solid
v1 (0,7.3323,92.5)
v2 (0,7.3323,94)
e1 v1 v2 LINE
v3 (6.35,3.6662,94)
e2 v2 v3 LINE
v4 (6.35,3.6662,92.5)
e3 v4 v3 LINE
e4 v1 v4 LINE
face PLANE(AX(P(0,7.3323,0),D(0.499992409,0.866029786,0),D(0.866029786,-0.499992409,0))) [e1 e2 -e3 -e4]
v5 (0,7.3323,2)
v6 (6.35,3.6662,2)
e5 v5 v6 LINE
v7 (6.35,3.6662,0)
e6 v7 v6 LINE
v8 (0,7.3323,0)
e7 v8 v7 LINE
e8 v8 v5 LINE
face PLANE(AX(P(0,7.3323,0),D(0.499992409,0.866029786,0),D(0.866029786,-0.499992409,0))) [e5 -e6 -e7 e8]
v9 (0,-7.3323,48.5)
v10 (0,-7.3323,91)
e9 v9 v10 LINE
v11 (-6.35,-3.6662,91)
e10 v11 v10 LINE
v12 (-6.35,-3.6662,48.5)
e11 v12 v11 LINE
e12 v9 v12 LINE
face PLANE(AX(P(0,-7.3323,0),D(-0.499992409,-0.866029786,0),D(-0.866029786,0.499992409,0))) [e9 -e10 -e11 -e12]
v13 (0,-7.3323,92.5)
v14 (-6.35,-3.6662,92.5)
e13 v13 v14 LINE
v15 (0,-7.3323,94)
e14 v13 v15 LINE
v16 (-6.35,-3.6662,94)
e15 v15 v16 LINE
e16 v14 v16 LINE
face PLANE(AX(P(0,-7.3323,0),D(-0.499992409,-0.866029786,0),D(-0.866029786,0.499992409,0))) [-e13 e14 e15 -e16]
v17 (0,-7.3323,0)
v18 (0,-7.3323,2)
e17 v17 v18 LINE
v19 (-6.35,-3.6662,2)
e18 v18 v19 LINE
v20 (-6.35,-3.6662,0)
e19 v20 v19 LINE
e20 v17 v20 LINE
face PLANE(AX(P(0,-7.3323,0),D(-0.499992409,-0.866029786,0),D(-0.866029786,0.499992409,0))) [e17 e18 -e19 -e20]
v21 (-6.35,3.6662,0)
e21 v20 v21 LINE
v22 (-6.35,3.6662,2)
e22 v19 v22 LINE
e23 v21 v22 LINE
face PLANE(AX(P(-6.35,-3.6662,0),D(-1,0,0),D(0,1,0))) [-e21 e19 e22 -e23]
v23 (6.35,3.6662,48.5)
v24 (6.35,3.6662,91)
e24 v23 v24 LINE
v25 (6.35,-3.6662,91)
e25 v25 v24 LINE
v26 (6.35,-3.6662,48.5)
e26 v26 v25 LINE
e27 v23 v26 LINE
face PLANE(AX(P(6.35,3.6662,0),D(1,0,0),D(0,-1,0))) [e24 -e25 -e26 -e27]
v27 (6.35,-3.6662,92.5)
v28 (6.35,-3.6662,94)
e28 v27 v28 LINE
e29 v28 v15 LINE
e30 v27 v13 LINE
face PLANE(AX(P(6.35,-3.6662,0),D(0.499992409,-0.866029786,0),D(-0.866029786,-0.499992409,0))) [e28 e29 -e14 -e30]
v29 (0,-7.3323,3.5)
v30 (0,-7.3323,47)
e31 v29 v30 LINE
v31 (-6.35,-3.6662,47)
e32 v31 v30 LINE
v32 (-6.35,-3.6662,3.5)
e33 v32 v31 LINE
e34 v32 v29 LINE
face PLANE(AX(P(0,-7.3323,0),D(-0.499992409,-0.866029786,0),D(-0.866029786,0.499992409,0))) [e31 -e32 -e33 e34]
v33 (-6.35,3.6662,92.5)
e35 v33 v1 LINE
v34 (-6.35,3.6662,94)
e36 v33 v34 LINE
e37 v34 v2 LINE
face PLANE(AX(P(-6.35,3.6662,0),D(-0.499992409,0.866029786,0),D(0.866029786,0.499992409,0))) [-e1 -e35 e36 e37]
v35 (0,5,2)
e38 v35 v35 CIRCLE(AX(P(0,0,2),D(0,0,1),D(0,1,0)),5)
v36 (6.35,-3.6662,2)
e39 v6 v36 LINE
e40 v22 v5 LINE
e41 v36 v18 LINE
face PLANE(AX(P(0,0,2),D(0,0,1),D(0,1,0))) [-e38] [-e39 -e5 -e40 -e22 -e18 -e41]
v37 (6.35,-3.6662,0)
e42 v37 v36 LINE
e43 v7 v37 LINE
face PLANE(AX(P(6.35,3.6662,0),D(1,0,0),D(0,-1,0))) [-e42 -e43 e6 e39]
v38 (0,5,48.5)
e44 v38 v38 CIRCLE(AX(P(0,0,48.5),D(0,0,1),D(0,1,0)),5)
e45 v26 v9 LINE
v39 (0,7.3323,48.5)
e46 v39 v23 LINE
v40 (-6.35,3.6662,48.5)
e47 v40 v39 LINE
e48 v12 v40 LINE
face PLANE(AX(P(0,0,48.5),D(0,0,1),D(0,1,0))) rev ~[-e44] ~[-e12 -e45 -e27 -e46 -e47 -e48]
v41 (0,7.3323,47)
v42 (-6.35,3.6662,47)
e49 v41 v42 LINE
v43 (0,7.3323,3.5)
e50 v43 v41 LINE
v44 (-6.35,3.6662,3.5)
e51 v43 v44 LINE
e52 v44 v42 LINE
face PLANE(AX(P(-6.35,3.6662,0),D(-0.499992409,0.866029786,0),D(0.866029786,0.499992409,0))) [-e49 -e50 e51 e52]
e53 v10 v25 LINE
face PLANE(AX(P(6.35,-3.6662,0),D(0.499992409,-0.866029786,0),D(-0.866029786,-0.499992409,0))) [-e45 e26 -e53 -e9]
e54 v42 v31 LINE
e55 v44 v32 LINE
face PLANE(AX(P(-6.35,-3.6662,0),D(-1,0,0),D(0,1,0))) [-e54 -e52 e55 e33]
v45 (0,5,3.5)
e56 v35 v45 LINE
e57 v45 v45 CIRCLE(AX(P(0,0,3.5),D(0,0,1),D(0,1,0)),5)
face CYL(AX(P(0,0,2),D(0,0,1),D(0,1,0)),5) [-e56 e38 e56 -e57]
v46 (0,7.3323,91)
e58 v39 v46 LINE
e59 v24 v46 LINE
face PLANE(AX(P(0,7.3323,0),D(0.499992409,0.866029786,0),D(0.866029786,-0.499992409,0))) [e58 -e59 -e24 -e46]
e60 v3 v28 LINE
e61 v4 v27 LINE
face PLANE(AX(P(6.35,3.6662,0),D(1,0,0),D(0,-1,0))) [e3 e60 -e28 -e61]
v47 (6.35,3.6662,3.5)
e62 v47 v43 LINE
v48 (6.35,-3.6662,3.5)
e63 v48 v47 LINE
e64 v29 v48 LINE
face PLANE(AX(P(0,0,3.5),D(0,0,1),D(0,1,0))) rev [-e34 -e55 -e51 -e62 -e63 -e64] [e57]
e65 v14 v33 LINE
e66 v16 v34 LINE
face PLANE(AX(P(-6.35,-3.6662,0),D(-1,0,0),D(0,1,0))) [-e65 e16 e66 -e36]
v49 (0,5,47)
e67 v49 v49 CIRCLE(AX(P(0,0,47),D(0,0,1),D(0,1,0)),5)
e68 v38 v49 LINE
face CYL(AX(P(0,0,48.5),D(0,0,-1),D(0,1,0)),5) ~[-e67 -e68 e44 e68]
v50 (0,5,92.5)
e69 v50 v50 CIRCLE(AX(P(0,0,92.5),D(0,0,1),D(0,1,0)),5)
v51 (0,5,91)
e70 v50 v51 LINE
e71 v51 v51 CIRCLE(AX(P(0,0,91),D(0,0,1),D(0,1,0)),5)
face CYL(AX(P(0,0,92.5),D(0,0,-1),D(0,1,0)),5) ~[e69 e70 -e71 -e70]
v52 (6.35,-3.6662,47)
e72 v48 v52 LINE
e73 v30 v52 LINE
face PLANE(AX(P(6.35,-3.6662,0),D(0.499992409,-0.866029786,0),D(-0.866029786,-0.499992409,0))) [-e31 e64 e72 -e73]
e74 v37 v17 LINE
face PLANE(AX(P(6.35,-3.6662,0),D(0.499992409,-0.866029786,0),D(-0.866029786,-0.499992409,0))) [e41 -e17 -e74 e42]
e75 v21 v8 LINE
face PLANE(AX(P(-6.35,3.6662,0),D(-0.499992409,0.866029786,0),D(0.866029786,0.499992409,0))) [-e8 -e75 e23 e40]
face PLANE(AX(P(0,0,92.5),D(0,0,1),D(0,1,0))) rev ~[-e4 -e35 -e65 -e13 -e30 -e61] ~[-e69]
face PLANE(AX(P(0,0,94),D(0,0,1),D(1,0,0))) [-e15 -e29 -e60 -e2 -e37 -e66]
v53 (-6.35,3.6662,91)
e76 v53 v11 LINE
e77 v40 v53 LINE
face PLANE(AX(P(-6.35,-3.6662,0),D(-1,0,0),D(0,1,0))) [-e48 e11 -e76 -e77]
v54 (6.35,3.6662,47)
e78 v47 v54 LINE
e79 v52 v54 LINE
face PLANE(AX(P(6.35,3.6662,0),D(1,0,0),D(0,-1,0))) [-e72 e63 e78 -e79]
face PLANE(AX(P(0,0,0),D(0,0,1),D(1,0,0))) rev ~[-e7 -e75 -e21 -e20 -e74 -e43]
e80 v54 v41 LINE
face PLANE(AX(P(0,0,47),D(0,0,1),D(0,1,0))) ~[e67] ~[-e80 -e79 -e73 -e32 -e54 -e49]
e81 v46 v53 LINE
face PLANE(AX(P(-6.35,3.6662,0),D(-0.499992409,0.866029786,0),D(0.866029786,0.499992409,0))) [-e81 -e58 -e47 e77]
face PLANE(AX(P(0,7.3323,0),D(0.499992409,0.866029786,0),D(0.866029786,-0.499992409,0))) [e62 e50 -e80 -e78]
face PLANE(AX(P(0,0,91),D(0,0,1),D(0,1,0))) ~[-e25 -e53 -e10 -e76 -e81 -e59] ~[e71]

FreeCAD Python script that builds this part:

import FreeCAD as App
import Part
import Sketcher

V = App.Vector
Q = App.Units.Quantity


def add_polygon(sketch, points):
    """Adds a closed chain of lines whose ends are joined by coincident constraints."""
    first, n = sketch.GeometryCount, len(points)
    for a, b in zip(points, points[1:] + points[:1]):
        sketch.addGeometry(Part.LineSegment(App.Vector(*a, 0), App.Vector(*b, 0)), False)
    for i in range(n):
        sketch.addConstraint(Sketcher.Constraint("Coincident", first + i, 2, first + (i + 1) % n, 1))

doc = App.newDocument("Part")
body = doc.addObject("PartDesign::Body", "Body")

sketch1 = doc.addObject("Sketcher::SketchObject", "Sketch")
body.addObject(sketch1)
sketch1.AttachmentSupport = (doc.XY_Plane, [""])
sketch1.MapMode = "FlatFace"
add_polygon(sketch1, [(0, -7), (6, -4), (6, 4), (0, 7), (-6, 4), (-6, -4)])
sketch1.addConstraint([
    Sketcher.Constraint("Vertical", 1),
    Sketcher.Constraint("Vertical", 4),
    Sketcher.Constraint("Symmetric", 0, 2, 3, 2, -1, 1),
    Sketcher.Constraint("Symmetric", 2, 2, 5, 2, -1, 1),
    Sketcher.Constraint("PointOnObject", 2, 2, -2),
    Sketcher.Constraint("Parallel", 2, 5),
    Sketcher.Constraint("Horizontal", 1, 2, 3, 2),
    Sketcher.Constraint("DistanceX", 3, 2, 1, 2, 12.7),
    Sketcher.Constraint("Angle", 0, Q("29.9995 deg")),
    Sketcher.Constraint("DistanceY", 1, 1, 1, 2, 7.3324),
])
pad1 = doc.addObject("PartDesign::Pad", "Pad")
body.addObject(pad1)
pad1.Profile = sketch1
pad1.Length = 94

sketch2 = doc.addObject("Sketcher::SketchObject", "Sketch001")
body.addObject(sketch2)
sketch2.AttachmentSupport = (doc.YZ_Plane, [""])
sketch2.MapMode = "FlatFace"
add_polygon(sketch2, [(5, 2), (15, 2), (15, 3.5), (5, 3.5)])
add_polygon(sketch2, [(15, 91), (15, 92.5), (5, 92.5), (5, 91)])
add_polygon(sketch2, [(15, 47), (15, 48.5), (5, 48.5), (5, 47)])
sketch2.addConstraint([
    Sketcher.Constraint("Horizontal", 0),
    Sketcher.Constraint("Vertical", 1),
    Sketcher.Constraint("Horizontal", 2),
    Sketcher.Constraint("Vertical", 3),
    Sketcher.Constraint("Vertical", 4),
    Sketcher.Constraint("Horizontal", 5),
    Sketcher.Constraint("Vertical", 6),
    Sketcher.Constraint("Horizontal", 7),
    Sketcher.Constraint("Vertical", 8),
    Sketcher.Constraint("Horizontal", 9),
    Sketcher.Constraint("Vertical", 10),
    Sketcher.Constraint("Horizontal", 11),
    Sketcher.Constraint("Vertical", 1, 2, 4, 2),
    Sketcher.Constraint("Vertical", 3, 2, 5, 2),
    Sketcher.Constraint("Vertical", 7, 2, 8, 2),
    Sketcher.Constraint("Vertical", 6, 2, 9, 2),
    Sketcher.Constraint("Equal", 3, 4),
    Sketcher.Constraint("Equal", 6, 8),
    Sketcher.Constraint("DistanceX", 0, 1, 0, 2, 10.0),
    Sketcher.Constraint("DistanceY", 1, 1, 1, 2, 1.5),
    Sketcher.Constraint("DistanceY", -1, 1, 0, 2, 2.0),
    Sketcher.Constraint("DistanceX", -1, 1, 2, 2, 5.0),
    Sketcher.Constraint("DistanceY", -1, 1, 6, 2, 91.0),
    Sketcher.Constraint("DistanceY", -1, 1, 10, 2, 47.0),
])
groove = doc.addObject("PartDesign::Groove", "Groove")
body.addObject(groove)
groove.Profile = sketch2
groove.ReferenceAxis = (sketch2, ["V_Axis"])
groove.Angle = 360

doc.recompute()
